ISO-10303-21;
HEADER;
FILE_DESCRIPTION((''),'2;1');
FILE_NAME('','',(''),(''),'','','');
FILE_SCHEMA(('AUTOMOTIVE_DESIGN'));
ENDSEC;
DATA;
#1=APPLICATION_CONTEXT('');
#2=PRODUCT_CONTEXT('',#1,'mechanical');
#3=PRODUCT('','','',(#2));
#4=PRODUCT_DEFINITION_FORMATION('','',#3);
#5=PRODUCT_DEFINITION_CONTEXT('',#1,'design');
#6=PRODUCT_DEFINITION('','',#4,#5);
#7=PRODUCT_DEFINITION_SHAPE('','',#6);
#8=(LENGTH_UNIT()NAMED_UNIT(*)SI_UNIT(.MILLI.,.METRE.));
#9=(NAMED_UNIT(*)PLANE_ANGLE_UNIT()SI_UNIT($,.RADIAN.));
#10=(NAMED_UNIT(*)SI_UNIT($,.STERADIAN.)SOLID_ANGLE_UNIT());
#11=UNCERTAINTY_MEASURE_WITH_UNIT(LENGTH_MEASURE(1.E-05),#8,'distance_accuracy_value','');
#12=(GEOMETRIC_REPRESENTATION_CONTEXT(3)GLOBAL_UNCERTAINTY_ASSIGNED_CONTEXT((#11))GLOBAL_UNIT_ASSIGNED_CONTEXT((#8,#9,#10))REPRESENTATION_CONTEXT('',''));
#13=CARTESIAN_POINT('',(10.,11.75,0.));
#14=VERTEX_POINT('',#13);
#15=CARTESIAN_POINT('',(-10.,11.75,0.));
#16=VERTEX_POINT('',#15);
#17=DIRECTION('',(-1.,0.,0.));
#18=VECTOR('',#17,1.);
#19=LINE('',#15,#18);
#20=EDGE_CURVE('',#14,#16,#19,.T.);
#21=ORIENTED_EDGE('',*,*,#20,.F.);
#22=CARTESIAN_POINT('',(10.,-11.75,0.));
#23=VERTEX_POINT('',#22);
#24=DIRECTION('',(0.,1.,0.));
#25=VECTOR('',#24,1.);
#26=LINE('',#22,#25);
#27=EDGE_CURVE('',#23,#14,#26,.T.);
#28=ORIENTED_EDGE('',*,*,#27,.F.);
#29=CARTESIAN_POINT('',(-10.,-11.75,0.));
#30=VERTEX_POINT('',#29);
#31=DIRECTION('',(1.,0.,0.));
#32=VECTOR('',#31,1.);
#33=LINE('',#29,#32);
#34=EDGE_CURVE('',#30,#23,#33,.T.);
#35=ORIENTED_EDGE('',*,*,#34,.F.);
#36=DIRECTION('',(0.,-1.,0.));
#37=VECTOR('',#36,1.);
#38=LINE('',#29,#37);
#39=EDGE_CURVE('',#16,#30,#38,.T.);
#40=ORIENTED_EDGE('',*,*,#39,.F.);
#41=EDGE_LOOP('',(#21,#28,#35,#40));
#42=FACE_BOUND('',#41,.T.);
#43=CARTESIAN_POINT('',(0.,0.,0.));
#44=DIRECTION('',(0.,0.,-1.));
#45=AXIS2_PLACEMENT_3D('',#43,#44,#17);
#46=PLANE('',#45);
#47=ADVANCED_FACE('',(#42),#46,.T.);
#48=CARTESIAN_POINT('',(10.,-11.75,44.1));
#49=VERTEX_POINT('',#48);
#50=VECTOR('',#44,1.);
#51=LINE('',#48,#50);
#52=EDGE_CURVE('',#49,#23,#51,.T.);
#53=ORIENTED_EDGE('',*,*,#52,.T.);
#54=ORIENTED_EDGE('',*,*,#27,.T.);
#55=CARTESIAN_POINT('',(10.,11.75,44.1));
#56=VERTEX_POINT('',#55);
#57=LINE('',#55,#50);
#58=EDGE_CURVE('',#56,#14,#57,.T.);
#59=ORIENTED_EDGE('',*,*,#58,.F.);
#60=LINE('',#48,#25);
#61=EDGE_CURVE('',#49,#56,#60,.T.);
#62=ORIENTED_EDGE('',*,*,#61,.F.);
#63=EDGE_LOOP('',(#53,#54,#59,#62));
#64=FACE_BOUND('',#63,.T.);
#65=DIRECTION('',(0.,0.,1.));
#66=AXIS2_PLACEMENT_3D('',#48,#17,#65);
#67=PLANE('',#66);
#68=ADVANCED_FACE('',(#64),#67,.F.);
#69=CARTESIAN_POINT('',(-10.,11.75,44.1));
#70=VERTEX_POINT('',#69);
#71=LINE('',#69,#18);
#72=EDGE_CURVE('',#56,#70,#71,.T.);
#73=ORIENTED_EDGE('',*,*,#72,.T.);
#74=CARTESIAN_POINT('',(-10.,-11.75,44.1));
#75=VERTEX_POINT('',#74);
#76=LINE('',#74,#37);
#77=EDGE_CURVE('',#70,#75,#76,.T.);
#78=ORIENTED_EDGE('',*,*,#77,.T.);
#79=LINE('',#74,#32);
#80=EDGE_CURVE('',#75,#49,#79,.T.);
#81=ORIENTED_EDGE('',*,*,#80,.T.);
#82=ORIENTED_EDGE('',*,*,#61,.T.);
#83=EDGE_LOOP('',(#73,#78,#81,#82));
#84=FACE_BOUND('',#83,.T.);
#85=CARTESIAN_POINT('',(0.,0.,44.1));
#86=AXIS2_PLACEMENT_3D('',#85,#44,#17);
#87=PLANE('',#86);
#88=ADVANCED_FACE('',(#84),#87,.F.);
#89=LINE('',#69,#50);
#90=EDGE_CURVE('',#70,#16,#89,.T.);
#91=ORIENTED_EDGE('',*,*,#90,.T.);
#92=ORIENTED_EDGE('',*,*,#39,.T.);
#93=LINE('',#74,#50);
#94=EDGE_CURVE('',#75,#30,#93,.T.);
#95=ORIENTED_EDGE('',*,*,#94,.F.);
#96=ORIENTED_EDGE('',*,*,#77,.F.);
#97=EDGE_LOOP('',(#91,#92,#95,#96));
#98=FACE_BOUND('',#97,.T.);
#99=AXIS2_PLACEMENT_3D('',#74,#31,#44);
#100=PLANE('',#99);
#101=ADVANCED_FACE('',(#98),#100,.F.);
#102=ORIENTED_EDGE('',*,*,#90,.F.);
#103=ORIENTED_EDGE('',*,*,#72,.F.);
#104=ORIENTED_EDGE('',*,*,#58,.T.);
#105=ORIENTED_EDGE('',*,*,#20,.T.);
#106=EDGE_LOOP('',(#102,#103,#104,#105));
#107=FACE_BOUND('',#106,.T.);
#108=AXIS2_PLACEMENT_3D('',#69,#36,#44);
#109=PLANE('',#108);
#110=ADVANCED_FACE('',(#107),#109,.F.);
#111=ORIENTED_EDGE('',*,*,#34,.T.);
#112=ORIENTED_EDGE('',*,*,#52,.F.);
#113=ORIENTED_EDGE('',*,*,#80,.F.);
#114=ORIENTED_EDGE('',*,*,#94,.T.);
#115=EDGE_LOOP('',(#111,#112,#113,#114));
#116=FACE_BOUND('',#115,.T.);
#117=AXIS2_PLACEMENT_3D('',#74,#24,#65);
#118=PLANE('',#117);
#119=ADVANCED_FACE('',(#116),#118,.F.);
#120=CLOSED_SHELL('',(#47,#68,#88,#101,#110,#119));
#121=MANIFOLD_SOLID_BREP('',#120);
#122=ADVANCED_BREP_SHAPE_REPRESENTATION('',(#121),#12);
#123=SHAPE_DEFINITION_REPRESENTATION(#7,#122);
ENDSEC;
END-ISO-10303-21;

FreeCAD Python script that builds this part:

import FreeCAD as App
import Part
import Sketcher
from FreeCAD import Vector
Q = App.Units.Quantity


def add_polygon(sketch, points):
    """Adds a closed chain of lines whose ends are joined by coincident constraints."""
    first, n = sketch.GeometryCount, len(points)
    for a, b in zip(points, points[1:] + points[:1]):
        sketch.addGeometry(Part.LineSegment(App.Vector(*a, 0), App.Vector(*b, 0)), False)
    for i in range(n):
        sketch.addConstraint(Sketcher.Constraint("Coincident", first + i, 2, first + (i + 1) % n, 1))

doc = App.newDocument("Part")
body = doc.addObject("PartDesign::Body", "Body")

# Sketch on XY plane
sketch1 = body.newObject("Sketcher::SketchObject", "Sketch")
sketch1.AttachmentSupport = (doc.getObject("XY_Plane"), [""])
sketch1.MapMode = "FlatFace"
add_polygon(sketch1, [(-10, 12), (-10, -12), (10, -12), (10, 12)])  # lines 0-3
sketch1.addConstraint([
    Sketcher.Constraint("Vertical", 0),
    Sketcher.Constraint("Horizontal", 1),
    Sketcher.Constraint("Vertical", 2),
    Sketcher.Constraint("Horizontal", 3),
    Sketcher.Constraint("Symmetric", 0, 2, 2, 2, -1, 1),
    Sketcher.Constraint("DistanceX", 1, 1, 1, 2, Q("20 mm")),
    Sketcher.Constraint("DistanceY", 0, 2, 0, 1, Q("23.5 mm")),
])
pad1 = body.newObject("PartDesign::Pad", "Pad")
pad1.Profile = sketch1
pad1.Length = 44.1

doc.recompute()
